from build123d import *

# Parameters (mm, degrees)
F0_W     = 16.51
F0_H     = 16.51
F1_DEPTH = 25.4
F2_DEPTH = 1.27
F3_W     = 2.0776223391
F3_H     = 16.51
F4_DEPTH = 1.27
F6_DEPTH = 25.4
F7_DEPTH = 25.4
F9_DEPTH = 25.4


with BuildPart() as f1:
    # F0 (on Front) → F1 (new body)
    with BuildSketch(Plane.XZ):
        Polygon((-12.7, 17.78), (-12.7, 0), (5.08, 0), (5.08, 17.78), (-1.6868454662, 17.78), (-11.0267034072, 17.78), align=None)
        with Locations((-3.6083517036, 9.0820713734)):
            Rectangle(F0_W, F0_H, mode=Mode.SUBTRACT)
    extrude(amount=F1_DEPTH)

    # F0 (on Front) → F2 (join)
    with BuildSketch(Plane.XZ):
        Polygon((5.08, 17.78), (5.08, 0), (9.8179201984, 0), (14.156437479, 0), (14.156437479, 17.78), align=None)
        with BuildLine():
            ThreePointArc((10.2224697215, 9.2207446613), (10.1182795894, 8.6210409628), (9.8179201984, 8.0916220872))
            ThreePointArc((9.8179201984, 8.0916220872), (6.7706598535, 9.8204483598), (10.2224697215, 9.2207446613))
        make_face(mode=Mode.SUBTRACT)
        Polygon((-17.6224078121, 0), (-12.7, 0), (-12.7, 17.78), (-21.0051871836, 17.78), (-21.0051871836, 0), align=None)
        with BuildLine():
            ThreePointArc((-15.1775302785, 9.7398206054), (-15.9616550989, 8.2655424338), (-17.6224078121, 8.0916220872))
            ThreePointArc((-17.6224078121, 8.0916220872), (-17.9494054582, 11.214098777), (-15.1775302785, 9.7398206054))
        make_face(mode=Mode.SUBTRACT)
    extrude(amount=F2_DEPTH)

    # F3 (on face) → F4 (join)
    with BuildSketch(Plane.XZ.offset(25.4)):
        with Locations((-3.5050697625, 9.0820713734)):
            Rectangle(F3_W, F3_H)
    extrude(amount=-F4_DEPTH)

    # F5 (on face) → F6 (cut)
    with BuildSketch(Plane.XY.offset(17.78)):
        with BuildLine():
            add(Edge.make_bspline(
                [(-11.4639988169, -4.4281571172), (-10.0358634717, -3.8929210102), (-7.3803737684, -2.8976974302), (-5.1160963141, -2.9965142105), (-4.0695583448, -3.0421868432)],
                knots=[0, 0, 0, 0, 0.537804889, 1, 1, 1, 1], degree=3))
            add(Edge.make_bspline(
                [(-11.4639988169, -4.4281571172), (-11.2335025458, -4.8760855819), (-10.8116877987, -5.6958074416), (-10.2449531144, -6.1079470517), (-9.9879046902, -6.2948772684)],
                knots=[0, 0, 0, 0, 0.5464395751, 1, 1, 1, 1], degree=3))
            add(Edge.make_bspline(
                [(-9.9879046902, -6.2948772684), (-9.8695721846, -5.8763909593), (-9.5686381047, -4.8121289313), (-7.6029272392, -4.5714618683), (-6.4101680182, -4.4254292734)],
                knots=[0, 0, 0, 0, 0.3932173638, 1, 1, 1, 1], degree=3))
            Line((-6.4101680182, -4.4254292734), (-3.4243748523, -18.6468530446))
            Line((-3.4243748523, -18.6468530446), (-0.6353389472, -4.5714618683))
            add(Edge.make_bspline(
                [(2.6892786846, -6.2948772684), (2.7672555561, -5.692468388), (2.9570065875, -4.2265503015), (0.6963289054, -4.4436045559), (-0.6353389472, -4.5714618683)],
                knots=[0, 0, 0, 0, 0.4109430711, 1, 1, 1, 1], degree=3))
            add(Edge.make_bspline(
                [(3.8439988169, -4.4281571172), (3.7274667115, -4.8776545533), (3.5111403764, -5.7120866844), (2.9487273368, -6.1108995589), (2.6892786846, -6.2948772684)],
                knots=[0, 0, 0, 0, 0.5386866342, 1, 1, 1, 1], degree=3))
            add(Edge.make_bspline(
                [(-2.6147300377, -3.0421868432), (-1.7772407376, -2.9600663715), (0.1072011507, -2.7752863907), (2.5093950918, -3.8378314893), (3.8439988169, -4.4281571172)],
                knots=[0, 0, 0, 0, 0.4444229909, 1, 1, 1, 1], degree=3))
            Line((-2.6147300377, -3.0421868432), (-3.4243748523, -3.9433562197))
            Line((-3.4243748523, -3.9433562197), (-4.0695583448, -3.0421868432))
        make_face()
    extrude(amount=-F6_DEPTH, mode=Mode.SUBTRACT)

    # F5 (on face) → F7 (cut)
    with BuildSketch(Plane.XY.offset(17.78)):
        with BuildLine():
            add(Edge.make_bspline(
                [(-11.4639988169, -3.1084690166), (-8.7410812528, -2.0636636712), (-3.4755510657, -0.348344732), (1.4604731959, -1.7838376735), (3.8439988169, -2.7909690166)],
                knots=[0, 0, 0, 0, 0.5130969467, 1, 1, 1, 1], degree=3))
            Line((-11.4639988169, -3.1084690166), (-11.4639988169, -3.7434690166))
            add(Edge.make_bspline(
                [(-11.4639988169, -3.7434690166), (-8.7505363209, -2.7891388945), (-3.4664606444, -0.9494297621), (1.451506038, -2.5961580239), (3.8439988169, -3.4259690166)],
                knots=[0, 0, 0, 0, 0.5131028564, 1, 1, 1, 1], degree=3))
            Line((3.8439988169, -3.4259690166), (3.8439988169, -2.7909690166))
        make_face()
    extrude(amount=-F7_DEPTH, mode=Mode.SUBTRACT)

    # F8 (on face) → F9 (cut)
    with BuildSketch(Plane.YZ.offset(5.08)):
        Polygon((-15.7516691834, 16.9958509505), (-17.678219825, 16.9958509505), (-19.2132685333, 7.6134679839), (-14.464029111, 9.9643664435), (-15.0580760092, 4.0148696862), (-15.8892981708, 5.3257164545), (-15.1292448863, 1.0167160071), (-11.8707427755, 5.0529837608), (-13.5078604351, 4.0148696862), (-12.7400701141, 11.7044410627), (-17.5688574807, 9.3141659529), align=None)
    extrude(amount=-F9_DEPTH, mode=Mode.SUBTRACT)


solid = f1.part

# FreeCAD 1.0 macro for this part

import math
import FreeCAD as App
import Part
import Sketcher

V = App.Vector
Q = App.Units.Quantity

doc = App.newDocument("Part")
params = doc.addObject("Spreadsheet::Sheet", "Params")
for row, (alias, value) in enumerate([
    ("sketch1_width", "0.7 in"),
    ("sketch1_width2", "0.65 in"),
    ("pad1_length", "1 in"),
    ("sketch2_radius", "0.07 in"),
    ("sketch2_height", "0.7 in"),
    ("pad2_length", "0.05 in"),
    ("sketch3_height", "0.65 in"),
    ("pad3_length", "0.05 in"),
    ("pocket1_length", "1 in"),
    ("pocket2_length", "1 in"),
    ("pocket3_length", "1 in"),
], start=1):
    params.set(f"A{row}", alias)
    params.set(f"B{row}", "=" + value)
    params.setAlias(f"B{row}", alias)

body = doc.addObject("PartDesign::Body", "Body")

# Sketch on XZ plane
sketch1 = body.newObject("Sketcher::SketchObject", "Sketch")
sketch1.AttachmentSupport = (doc.getObject("XZ_Plane"), [""])
sketch1.MapMode = "FlatFace"
sketch1.addGeometry([
    Part.LineSegment(V(-13, 18, 0), V(-13, 0, 0)),  # 0
    Part.LineSegment(V(-13, 0, 0), V(5, 0, 0)),  # 1
    Part.LineSegment(V(5, 0, 0), V(5, 18, 0)),  # 2
    Part.LineSegment(V(5, 18, 0), V(-13, 18, 0)),  # 3
    Part.LineSegment(V(5, 1, 0), V(-12, 1, 0)),  # 4
    Part.LineSegment(V(-12, 1, 0), V(-12, 17, 0)),  # 5
    Part.LineSegment(V(-12, 17, 0), V(5, 17, 0)),  # 6
    Part.LineSegment(V(5, 17, 0), V(5, 1, 0)),  # 7
], False)
sketch1.addConstraint([
    Sketcher.Constraint("Coincident", 0, 2, 1, 1),
    Sketcher.Constraint("Coincident", 1, 2, 2, 1),
    Sketcher.Constraint("Coincident", 2, 2, 3, 1),
    Sketcher.Constraint("Coincident", 3, 2, 0, 1),
    Sketcher.Constraint("Coincident", 4, 2, 5, 1),
    Sketcher.Constraint("Coincident", 5, 2, 6, 1),
    Sketcher.Constraint("Coincident", 6, 2, 7, 1),
    Sketcher.Constraint("Coincident", 7, 2, 4, 1),
    Sketcher.Constraint("Vertical", 0),
    Sketcher.Constraint("Horizontal", 1),
    Sketcher.Constraint("Vertical", 2),
    Sketcher.Constraint("Horizontal", 3),
    Sketcher.Constraint("Horizontal", 4),
    Sketcher.Constraint("Vertical", 5),
    Sketcher.Constraint("Horizontal", 6),
    Sketcher.Constraint("Vertical", 7),
    Sketcher.Constraint("PointOnObject", 0, 2, -1),
    Sketcher.Constraint("Equal", 3, 0),
    Sketcher.Constraint("Equal", 6, 5),
    Sketcher.Constraint("DistanceX", 1, 1, 1, 2, Q("0.7 in")),
    Sketcher.Constraint("DistanceX", 4, 2, 4, 1, Q("0.65 in")),
    Sketcher.Constraint("DistanceX", 0, 2, -1, 1, Q("0.5 in")),
    Sketcher.Constraint("DistanceX", 4, 2, -1, 1, Q("11.863352 mm")),
    Sketcher.Constraint("DistanceY", -1, 1, 4, 2, Q("0.827071 mm")),
])
sketch1.setExpression("Constraints[19]", "Params.sketch1_width")
sketch1.setExpression("Constraints[20]", "Params.sketch1_width2")
pad1 = body.newObject("PartDesign::Pad", "Pad")
pad1.Profile = sketch1
pad1.setExpression("Length", "Params.pad1_length")

# Sketch on XZ plane
sketch2 = body.newObject("Sketcher::SketchObject", "Sketch001")
sketch2.AttachmentSupport = (doc.getObject("XZ_Plane"), [""])
sketch2.MapMode = "FlatFace"
sketch2.addGeometry([
    Part.LineSegment(V(5.1, 17.8, 0), V(5.1, 0, 0)),  # 0
    Part.LineSegment(V(5.1, 0, 0), V(14.2, 0, 0)),  # 1
    Part.LineSegment(V(14.2, 0, 0), V(14.2, 17.8, 0)),  # 2
    Part.LineSegment(V(14.2, 17.8, 0), V(5.1, 17.8, 0)),  # 3
    Part.ArcOfCircle(Part.Circle(V(8.4, 9.2, 0), V(0, 0, 1), 1.8), math.radians(0), math.radians(321)),  # 4
    Part.ArcOfCircle(Part.Circle(V(8.4, 9.2, 0), V(0, 0, 1), 1.8), math.radians(-39), math.radians(0)),  # 5
    Part.LineSegment(V(-12.7, 0, 0), V(-12.7, 17.8, 0)),  # 6
    Part.LineSegment(V(-12.7, 17.8, 0), V(-21, 17.8, 0)),  # 7
    Part.LineSegment(V(-21, 17.8, 0), V(-21, 0, 0)),  # 8
    Part.LineSegment(V(-21, 0, 0), V(-12.7, 0, 0)),  # 9
    Part.ArcOfCircle(Part.Circle(V(-17, 9.7, 0), V(0, 0, 1), 1.8), math.radians(0), math.radians(248)),  # 10
    Part.ArcOfCircle(Part.Circle(V(-17, 9.7, 0), V(0, 0, 1), 1.8), math.radians(-112), math.radians(0)),  # 11
], False)
sketch2.addConstraint([
    Sketcher.Constraint("Coincident", 0, 2, 1, 1),
    Sketcher.Constraint("Coincident", 1, 2, 2, 1),
    Sketcher.Constraint("Coincident", 2, 2, 3, 1),
    Sketcher.Constraint("Coincident", 3, 2, 0, 1),
    Sketcher.Constraint("Tangent", 4, 1, 5, 2),
    Sketcher.Constraint("Coincident", 5, 1, 4, 2),
    Sketcher.Constraint("Coincident", 6, 2, 7, 1),
    Sketcher.Constraint("Coincident", 7, 2, 8, 1),
    Sketcher.Constraint("Coincident", 8, 2, 9, 1),
    Sketcher.Constraint("Coincident", 9, 2, 6, 1),
    Sketcher.Constraint("Tangent", 10, 1, 11, 2),
    Sketcher.Constraint("Coincident", 11, 1, 10, 2),
    Sketcher.Constraint("Vertical", 0),
    Sketcher.Constraint("Horizontal", 1),
    Sketcher.Constraint("Vertical", 2),
    Sketcher.Constraint("Horizontal", 3),
    Sketcher.Constraint("Vertical", 6),
    Sketcher.Constraint("Horizontal", 7),
    Sketcher.Constraint("Vertical", 8),
    Sketcher.Constraint("Horizontal", 9),
    Sketcher.Constraint("Equal", 5, 10),
    Sketcher.Constraint("PointOnObject", 0, 2, -1),
    Sketcher.Constraint("PointOnObject", 8, 2, -1),
    Sketcher.Constraint("Horizontal", 5, 3, 4, 1),
    Sketcher.Constraint("Horizontal", 3, 2, 6, 2),
    Sketcher.Constraint("Horizontal", 11, 3, 10, 1),
    Sketcher.Constraint("Horizontal", 5, 1, 11, 1),
    Sketcher.Constraint("Radius", 4, Q("0.07 in")),
    Sketcher.Constraint("DistanceY", 0, 2, 0, 1, Q("0.7 in")),
    Sketcher.Constraint("DistanceX", 10, 3, 4, 3, Q("1 in")),
    Sketcher.Constraint("DistanceX", -1, 1, 0, 2, Q("0.2 in")),
    Sketcher.Constraint("DistanceX", 6, 2, -1, 1, Q("0.5 in")),
    Sketcher.Constraint("DistanceY", 11, 1, 10, 3, Q("1.648199 mm")),
    Sketcher.Constraint("DistanceX", 1, 1, 1, 2, Q("9.076437 mm")),
    Sketcher.Constraint("DistanceX", 7, 2, 7, 1, Q("8.305187 mm")),
    Sketcher.Constraint("DistanceX", -1, 1, 4, 3, Q("8.44447 mm")),
    Sketcher.Constraint("DistanceY", -1, 1, 10, 3, Q("9.739821 mm")),
    Sketcher.Constraint("DistanceX", -1, 1, 5, 1, Q("9.81792 mm")),
])
sketch2.setExpression("Constraints[27]", "Params.sketch2_radius")
sketch2.setExpression("Constraints[28]", "Params.sketch2_height")
pad2 = body.newObject("PartDesign::Pad", "Pad001")
pad2.Profile = sketch2
pad2.setExpression("Length", "Params.pad2_length")

# Sketch on XZ plane
sketch3 = body.newObject("Sketcher::SketchObject", "Sketch002")
sketch3.AttachmentSupport = (doc.getObject("XZ_Plane"), [""])
sketch3.MapMode = "FlatFace"
sketch3.AttachmentOffset = App.Placement(V(0, 0, 1 * 25.4), App.Rotation())
sketch3.addGeometry([
    Part.LineSegment(V(-4.5, 17.3, 0), V(-4.5, 0.8, 0)),
    Part.LineSegment(V(-4.5, 0.8, 0), V(-2.5, 0.8, 0)),
    Part.LineSegment(V(-2.5, 0.8, 0), V(-2.5, 17.3, 0)),
    Part.LineSegment(V(-2.5, 17.3, 0), V(-4.5, 17.3, 0)),
], False)
sketch3.addConstraint([
    Sketcher.Constraint("Coincident", 0, 2, 1, 1),
    Sketcher.Constraint("Coincident", 1, 2, 2, 1),
    Sketcher.Constraint("Coincident", 2, 2, 3, 1),
    Sketcher.Constraint("Coincident", 3, 2, 0, 1),
    Sketcher.Constraint("Vertical", 0),
    Sketcher.Constraint("Horizontal", 1),
    Sketcher.Constraint("Vertical", 2),
    Sketcher.Constraint("Horizontal", 3),
    Sketcher.Constraint("DistanceY", 0, 2, 0, 1, Q("0.65 in")),
    Sketcher.Constraint("DistanceX", 1, 1, 1, 2, Q("2.077622 mm")),
    Sketcher.Constraint("DistanceX", 0, 2, -1, 1, Q("4.543881 mm")),
    Sketcher.Constraint("DistanceY", -1, 1, 0, 2, Q("0.827071 mm")),
])
sketch3.setExpression("Constraints[8]", "Params.sketch3_height")
pad3 = body.newObject("PartDesign::Pad", "Pad002")
pad3.Profile = sketch3
pad3.setExpression("Length", "Params.pad3_length")
pad3.Reversed = True

# Sketch on XY plane
sketch4 = body.newObject("Sketcher::SketchObject", "Sketch003")
sketch4.AttachmentSupport = (doc.getObject("XY_Plane"), [""])
sketch4.MapMode = "FlatFace"
sketch4.AttachmentOffset = App.Placement(V(0, 0, 0.7 * 25.4), App.Rotation())
sketch4.addGeometry([
    Part.BSplineCurve([V(-11.463999, -4.428157, 0), V(-10.035863, -3.892921, 0), V(-7.380374, -2.897697, 0), V(-5.116096, -2.996514, 0), V(-4.069558, -3.042187, 0)], [4, 1, 4], [0, 0.537804889, 1], False, 3, [1, 1, 1, 1, 1], False),  # 0
    Part.BSplineCurve([V(-11.463999, -4.428157, 0), V(-11.233503, -4.876086, 0), V(-10.811688, -5.695807, 0), V(-10.244953, -6.107947, 0), V(-9.987905, -6.294877, 0)], [4, 1, 4], [0, 0.546439575, 1], False, 3, [1, 1, 1, 1, 1], False),  # 1
    Part.BSplineCurve([V(-9.987905, -6.294877, 0), V(-9.869572, -5.876391, 0), V(-9.568638, -4.812129, 0), V(-7.602927, -4.571462, 0), V(-6.410168, -4.425429, 0)], [4, 1, 4], [0, 0.393217364, 1], False, 3, [1, 1, 1, 1, 1], False),  # 2
    Part.LineSegment(V(-6.410168, -4.425429, 0), V(-3.424375, -18.646853, 0)),  # 3
    Part.LineSegment(V(-3.424375, -18.646853, 0), V(-0.635339, -4.571462, 0)),  # 4
    Part.BSplineCurve([V(2.689279, -6.294877, 0), V(2.767256, -5.692468, 0), V(2.957007, -4.22655, 0), V(0.696329, -4.443605, 0), V(-0.635339, -4.571462, 0)], [4, 1, 4], [0, 0.410943071, 1], False, 3, [1, 1, 1, 1, 1], False),  # 5
    Part.BSplineCurve([V(3.843999, -4.428157, 0), V(3.727467, -4.877655, 0), V(3.51114, -5.712087, 0), V(2.948727, -6.1109, 0), V(2.689279, -6.294877, 0)], [4, 1, 4], [0, 0.538686634, 1], False, 3, [1, 1, 1, 1, 1], False),  # 6
    Part.BSplineCurve([V(-2.61473, -3.042187, 0), V(-1.777241, -2.960066, 0), V(0.107201, -2.775286, 0), V(2.509395, -3.837831, 0), V(3.843999, -4.428157, 0)], [4, 1, 4], [0, 0.444422991, 1], False, 3, [1, 1, 1, 1, 1], False),  # 7
    Part.LineSegment(V(-2.61473, -3.042187, 0), V(-3.424375, -3.943356, 0)),  # 8
    Part.LineSegment(V(-3.424375, -3.943356, 0), V(-4.069558, -3.042187, 0)),  # 9
], False)
sketch4.addConstraint([
    Sketcher.Constraint("Block", 0),
    Sketcher.Constraint("Block", 1),
    Sketcher.Constraint("Block", 2),
    Sketcher.Constraint("Block", 5),
    Sketcher.Constraint("Block", 6),
    Sketcher.Constraint("Block", 7),
    Sketcher.Constraint("Coincident", 2, 2, 3, 1),
    Sketcher.Constraint("Coincident", 3, 2, 4, 1),
    Sketcher.Constraint("Coincident", 4, 2, 5, 2),
    Sketcher.Constraint("Coincident", 7, 1, 8, 1),
    Sketcher.Constraint("Coincident", 8, 2, 9, 1),
    Sketcher.Constraint("Coincident", 9, 2, 0, 2),
    Sketcher.Constraint("Vertical", 3, 2, 8, 2),
    Sketcher.Constraint("Distance", 3, Q("14.531478 mm")),
    Sketcher.Constraint("Distance", 8, Q("1.211458 mm")),
    Sketcher.Constraint("DistanceY", 3, 2, 4, 2, Q("14.075391 mm")),
])
pocket1 = body.newObject("PartDesign::Pocket", "Pocket")
pocket1.Profile = sketch4
pocket1.setExpression("Length", "Params.pocket1_length")

# Sketch on XY plane
sketch5 = body.newObject("Sketcher::SketchObject", "Sketch004")
sketch5.AttachmentSupport = (doc.getObject("XY_Plane"), [""])
sketch5.MapMode = "FlatFace"
sketch5.AttachmentOffset = App.Placement(V(0, 0, 0.7 * 25.4), App.Rotation())
sketch5.addGeometry([
    Part.BSplineCurve([V(-11.463999, -3.108469, 0), V(-8.741081, -2.063664, 0), V(-3.475551, -0.348345, 0), V(1.460473, -1.783838, 0), V(3.843999, -2.790969, 0)], [4, 1, 4], [0, 0.513096947, 1], False, 3, [1, 1, 1, 1, 1], False),
    Part.LineSegment(V(-11.463999, -3.108469, 0), V(-11.463999, -3.743469, 0)),
    Part.BSplineCurve([V(-11.463999, -3.743469, 0), V(-8.750536, -2.789139, 0), V(-3.466461, -0.94943, 0), V(1.451506, -2.596158, 0), V(3.843999, -3.425969, 0)], [4, 1, 4], [0, 0.513102856, 1], False, 3, [1, 1, 1, 1, 1], False),
    Part.LineSegment(V(3.843999, -3.425969, 0), V(3.843999, -2.790969, 0)),
], False)
sketch5.addConstraint([
    Sketcher.Constraint("Block", 0),
    Sketcher.Constraint("Block", 2),
    Sketcher.Constraint("Coincident", 0, 1, 1, 1),
    Sketcher.Constraint("Coincident", 1, 2, 2, 1),
    Sketcher.Constraint("Coincident", 2, 2, 3, 1),
    Sketcher.Constraint("Coincident", 3, 2, 0, 2),
])
pocket2 = body.newObject("PartDesign::Pocket", "Pocket001")
pocket2.Profile = sketch5
pocket2.setExpression("Length", "Params.pocket2_length")

# Sketch on YZ plane
sketch6 = body.newObject("Sketcher::SketchObject", "Sketch005")
sketch6.AttachmentSupport = (doc.getObject("YZ_Plane"), [""])
sketch6.MapMode = "FlatFace"
sketch6.AttachmentOffset = App.Placement(V(0, 0, 0.2 * 25.4), App.Rotation())
sketch6.addGeometry([
    Part.LineSegment(V(-15.751669, 16.995851, 0), V(-17.67822, 16.995851, 0)),  # 0
    Part.LineSegment(V(-17.67822, 16.995851, 0), V(-19.213269, 7.613468, 0)),  # 1
    Part.LineSegment(V(-19.213269, 7.613468, 0), V(-14.464029, 9.964366, 0)),  # 2
    Part.LineSegment(V(-14.464029, 9.964366, 0), V(-15.058076, 4.01487, 0)),  # 3
    Part.LineSegment(V(-15.058076, 4.01487, 0), V(-15.889298, 5.325716, 0)),  # 4
    Part.LineSegment(V(-15.889298, 5.325716, 0), V(-15.129245, 1.016716, 0)),  # 5
    Part.LineSegment(V(-15.129245, 1.016716, 0), V(-11.870743, 5.052984, 0)),  # 6
    Part.LineSegment(V(-11.870743, 5.052984, 0), V(-13.50786, 4.01487, 0)),  # 7
    Part.LineSegment(V(-13.50786, 4.01487, 0), V(-12.74007, 11.704441, 0)),  # 8
    Part.LineSegment(V(-12.74007, 11.704441, 0), V(-17.568857, 9.314166, 0)),  # 9
    Part.LineSegment(V(-17.568857, 9.314166, 0), V(-15.751669, 16.995851, 0)),  # 10
], False)
sketch6.addConstraint([
    Sketcher.Constraint("Coincident", 0, 2, 1, 1),
    Sketcher.Constraint("Coincident", 1, 2, 2, 1),
    Sketcher.Constraint("Coincident", 2, 2, 3, 1),
    Sketcher.Constraint("Coincident", 3, 2, 4, 1),
    Sketcher.Constraint("Coincident", 4, 2, 5, 1),
    Sketcher.Constraint("Coincident", 5, 2, 6, 1),
    Sketcher.Constraint("Coincident", 6, 2, 7, 1),
    Sketcher.Constraint("Coincident", 7, 2, 8, 1),
    Sketcher.Constraint("Coincident", 8, 2, 9, 1),
    Sketcher.Constraint("Coincident", 9, 2, 10, 1),
    Sketcher.Constraint("Coincident", 10, 2, 0, 1),
    Sketcher.Constraint("Horizontal", 0),
    Sketcher.Constraint("DistanceY", 5, 2, 0, 2, Q("0.6290998 in")),
    Sketcher.Constraint("DistanceX", 0, 2, 0, 1, Q("1.926551 mm")),
    Sketcher.Constraint("DistanceX", 4, 2, -1, 1, Q("15.889298 mm")),
    Sketcher.Constraint("DistanceY", 1, 2, 2, 2, Q("2.350898 mm")),
    Sketcher.Constraint("DistanceY", 3, 2, 1, 2, Q("3.598598 mm")),
    Sketcher.Constraint("DistanceY", 5, 2, 4, 2, Q("4.309 mm")),
    Sketcher.Constraint("DistanceX", 1, 2, 8, 2, Q("6.473198 mm")),
    Sketcher.Constraint("DistanceY", 9, 2, 2, 2, Q("0.6502 mm")),
    Sketcher.Constraint("DistanceX", 10, 2, 8, 2, Q("3.011599 mm")),
    Sketcher.Constraint("Distance", 1, Q("9.507128 mm")),
    Sketcher.Constraint("Distance", 3, Q("5.97908 mm")),
    Sketcher.Constraint("Distance", 5, Q("4.375519 mm")),
    Sketcher.Constraint("DistanceX", 0, 2, -1, 1, Q("17.67822 mm")),
    Sketcher.Constraint("DistanceY", -1, 1, 0, 2, Q("16.995851 mm")),
    Sketcher.Constraint("DistanceX", 2, 2, -1, 1, Q("14.464029 mm")),
    Sketcher.Constraint("DistanceX", 7, 2, -1, 1, Q("13.50786 mm")),
    Sketcher.Constraint("DistanceY", -1, 1, 7, 2, Q("4.01487 mm")),
    Sketcher.Constraint("DistanceY", -1, 1, 8, 2, Q("11.704441 mm")),
    Sketcher.Constraint("DistanceX", 1, 2, 9, 2, Q("1.644411 mm")),
    Sketcher.Constraint("Distance", 6, Q("5.187417 mm")),
    Sketcher.Constraint("Distance", 7, Q("1.938514 mm")),
])
pocket3 = body.newObject("PartDesign::Pocket", "Pocket002")
pocket3.Profile = sketch6
pocket3.setExpression("Length", "Params.pocket3_length")

doc.recompute()
